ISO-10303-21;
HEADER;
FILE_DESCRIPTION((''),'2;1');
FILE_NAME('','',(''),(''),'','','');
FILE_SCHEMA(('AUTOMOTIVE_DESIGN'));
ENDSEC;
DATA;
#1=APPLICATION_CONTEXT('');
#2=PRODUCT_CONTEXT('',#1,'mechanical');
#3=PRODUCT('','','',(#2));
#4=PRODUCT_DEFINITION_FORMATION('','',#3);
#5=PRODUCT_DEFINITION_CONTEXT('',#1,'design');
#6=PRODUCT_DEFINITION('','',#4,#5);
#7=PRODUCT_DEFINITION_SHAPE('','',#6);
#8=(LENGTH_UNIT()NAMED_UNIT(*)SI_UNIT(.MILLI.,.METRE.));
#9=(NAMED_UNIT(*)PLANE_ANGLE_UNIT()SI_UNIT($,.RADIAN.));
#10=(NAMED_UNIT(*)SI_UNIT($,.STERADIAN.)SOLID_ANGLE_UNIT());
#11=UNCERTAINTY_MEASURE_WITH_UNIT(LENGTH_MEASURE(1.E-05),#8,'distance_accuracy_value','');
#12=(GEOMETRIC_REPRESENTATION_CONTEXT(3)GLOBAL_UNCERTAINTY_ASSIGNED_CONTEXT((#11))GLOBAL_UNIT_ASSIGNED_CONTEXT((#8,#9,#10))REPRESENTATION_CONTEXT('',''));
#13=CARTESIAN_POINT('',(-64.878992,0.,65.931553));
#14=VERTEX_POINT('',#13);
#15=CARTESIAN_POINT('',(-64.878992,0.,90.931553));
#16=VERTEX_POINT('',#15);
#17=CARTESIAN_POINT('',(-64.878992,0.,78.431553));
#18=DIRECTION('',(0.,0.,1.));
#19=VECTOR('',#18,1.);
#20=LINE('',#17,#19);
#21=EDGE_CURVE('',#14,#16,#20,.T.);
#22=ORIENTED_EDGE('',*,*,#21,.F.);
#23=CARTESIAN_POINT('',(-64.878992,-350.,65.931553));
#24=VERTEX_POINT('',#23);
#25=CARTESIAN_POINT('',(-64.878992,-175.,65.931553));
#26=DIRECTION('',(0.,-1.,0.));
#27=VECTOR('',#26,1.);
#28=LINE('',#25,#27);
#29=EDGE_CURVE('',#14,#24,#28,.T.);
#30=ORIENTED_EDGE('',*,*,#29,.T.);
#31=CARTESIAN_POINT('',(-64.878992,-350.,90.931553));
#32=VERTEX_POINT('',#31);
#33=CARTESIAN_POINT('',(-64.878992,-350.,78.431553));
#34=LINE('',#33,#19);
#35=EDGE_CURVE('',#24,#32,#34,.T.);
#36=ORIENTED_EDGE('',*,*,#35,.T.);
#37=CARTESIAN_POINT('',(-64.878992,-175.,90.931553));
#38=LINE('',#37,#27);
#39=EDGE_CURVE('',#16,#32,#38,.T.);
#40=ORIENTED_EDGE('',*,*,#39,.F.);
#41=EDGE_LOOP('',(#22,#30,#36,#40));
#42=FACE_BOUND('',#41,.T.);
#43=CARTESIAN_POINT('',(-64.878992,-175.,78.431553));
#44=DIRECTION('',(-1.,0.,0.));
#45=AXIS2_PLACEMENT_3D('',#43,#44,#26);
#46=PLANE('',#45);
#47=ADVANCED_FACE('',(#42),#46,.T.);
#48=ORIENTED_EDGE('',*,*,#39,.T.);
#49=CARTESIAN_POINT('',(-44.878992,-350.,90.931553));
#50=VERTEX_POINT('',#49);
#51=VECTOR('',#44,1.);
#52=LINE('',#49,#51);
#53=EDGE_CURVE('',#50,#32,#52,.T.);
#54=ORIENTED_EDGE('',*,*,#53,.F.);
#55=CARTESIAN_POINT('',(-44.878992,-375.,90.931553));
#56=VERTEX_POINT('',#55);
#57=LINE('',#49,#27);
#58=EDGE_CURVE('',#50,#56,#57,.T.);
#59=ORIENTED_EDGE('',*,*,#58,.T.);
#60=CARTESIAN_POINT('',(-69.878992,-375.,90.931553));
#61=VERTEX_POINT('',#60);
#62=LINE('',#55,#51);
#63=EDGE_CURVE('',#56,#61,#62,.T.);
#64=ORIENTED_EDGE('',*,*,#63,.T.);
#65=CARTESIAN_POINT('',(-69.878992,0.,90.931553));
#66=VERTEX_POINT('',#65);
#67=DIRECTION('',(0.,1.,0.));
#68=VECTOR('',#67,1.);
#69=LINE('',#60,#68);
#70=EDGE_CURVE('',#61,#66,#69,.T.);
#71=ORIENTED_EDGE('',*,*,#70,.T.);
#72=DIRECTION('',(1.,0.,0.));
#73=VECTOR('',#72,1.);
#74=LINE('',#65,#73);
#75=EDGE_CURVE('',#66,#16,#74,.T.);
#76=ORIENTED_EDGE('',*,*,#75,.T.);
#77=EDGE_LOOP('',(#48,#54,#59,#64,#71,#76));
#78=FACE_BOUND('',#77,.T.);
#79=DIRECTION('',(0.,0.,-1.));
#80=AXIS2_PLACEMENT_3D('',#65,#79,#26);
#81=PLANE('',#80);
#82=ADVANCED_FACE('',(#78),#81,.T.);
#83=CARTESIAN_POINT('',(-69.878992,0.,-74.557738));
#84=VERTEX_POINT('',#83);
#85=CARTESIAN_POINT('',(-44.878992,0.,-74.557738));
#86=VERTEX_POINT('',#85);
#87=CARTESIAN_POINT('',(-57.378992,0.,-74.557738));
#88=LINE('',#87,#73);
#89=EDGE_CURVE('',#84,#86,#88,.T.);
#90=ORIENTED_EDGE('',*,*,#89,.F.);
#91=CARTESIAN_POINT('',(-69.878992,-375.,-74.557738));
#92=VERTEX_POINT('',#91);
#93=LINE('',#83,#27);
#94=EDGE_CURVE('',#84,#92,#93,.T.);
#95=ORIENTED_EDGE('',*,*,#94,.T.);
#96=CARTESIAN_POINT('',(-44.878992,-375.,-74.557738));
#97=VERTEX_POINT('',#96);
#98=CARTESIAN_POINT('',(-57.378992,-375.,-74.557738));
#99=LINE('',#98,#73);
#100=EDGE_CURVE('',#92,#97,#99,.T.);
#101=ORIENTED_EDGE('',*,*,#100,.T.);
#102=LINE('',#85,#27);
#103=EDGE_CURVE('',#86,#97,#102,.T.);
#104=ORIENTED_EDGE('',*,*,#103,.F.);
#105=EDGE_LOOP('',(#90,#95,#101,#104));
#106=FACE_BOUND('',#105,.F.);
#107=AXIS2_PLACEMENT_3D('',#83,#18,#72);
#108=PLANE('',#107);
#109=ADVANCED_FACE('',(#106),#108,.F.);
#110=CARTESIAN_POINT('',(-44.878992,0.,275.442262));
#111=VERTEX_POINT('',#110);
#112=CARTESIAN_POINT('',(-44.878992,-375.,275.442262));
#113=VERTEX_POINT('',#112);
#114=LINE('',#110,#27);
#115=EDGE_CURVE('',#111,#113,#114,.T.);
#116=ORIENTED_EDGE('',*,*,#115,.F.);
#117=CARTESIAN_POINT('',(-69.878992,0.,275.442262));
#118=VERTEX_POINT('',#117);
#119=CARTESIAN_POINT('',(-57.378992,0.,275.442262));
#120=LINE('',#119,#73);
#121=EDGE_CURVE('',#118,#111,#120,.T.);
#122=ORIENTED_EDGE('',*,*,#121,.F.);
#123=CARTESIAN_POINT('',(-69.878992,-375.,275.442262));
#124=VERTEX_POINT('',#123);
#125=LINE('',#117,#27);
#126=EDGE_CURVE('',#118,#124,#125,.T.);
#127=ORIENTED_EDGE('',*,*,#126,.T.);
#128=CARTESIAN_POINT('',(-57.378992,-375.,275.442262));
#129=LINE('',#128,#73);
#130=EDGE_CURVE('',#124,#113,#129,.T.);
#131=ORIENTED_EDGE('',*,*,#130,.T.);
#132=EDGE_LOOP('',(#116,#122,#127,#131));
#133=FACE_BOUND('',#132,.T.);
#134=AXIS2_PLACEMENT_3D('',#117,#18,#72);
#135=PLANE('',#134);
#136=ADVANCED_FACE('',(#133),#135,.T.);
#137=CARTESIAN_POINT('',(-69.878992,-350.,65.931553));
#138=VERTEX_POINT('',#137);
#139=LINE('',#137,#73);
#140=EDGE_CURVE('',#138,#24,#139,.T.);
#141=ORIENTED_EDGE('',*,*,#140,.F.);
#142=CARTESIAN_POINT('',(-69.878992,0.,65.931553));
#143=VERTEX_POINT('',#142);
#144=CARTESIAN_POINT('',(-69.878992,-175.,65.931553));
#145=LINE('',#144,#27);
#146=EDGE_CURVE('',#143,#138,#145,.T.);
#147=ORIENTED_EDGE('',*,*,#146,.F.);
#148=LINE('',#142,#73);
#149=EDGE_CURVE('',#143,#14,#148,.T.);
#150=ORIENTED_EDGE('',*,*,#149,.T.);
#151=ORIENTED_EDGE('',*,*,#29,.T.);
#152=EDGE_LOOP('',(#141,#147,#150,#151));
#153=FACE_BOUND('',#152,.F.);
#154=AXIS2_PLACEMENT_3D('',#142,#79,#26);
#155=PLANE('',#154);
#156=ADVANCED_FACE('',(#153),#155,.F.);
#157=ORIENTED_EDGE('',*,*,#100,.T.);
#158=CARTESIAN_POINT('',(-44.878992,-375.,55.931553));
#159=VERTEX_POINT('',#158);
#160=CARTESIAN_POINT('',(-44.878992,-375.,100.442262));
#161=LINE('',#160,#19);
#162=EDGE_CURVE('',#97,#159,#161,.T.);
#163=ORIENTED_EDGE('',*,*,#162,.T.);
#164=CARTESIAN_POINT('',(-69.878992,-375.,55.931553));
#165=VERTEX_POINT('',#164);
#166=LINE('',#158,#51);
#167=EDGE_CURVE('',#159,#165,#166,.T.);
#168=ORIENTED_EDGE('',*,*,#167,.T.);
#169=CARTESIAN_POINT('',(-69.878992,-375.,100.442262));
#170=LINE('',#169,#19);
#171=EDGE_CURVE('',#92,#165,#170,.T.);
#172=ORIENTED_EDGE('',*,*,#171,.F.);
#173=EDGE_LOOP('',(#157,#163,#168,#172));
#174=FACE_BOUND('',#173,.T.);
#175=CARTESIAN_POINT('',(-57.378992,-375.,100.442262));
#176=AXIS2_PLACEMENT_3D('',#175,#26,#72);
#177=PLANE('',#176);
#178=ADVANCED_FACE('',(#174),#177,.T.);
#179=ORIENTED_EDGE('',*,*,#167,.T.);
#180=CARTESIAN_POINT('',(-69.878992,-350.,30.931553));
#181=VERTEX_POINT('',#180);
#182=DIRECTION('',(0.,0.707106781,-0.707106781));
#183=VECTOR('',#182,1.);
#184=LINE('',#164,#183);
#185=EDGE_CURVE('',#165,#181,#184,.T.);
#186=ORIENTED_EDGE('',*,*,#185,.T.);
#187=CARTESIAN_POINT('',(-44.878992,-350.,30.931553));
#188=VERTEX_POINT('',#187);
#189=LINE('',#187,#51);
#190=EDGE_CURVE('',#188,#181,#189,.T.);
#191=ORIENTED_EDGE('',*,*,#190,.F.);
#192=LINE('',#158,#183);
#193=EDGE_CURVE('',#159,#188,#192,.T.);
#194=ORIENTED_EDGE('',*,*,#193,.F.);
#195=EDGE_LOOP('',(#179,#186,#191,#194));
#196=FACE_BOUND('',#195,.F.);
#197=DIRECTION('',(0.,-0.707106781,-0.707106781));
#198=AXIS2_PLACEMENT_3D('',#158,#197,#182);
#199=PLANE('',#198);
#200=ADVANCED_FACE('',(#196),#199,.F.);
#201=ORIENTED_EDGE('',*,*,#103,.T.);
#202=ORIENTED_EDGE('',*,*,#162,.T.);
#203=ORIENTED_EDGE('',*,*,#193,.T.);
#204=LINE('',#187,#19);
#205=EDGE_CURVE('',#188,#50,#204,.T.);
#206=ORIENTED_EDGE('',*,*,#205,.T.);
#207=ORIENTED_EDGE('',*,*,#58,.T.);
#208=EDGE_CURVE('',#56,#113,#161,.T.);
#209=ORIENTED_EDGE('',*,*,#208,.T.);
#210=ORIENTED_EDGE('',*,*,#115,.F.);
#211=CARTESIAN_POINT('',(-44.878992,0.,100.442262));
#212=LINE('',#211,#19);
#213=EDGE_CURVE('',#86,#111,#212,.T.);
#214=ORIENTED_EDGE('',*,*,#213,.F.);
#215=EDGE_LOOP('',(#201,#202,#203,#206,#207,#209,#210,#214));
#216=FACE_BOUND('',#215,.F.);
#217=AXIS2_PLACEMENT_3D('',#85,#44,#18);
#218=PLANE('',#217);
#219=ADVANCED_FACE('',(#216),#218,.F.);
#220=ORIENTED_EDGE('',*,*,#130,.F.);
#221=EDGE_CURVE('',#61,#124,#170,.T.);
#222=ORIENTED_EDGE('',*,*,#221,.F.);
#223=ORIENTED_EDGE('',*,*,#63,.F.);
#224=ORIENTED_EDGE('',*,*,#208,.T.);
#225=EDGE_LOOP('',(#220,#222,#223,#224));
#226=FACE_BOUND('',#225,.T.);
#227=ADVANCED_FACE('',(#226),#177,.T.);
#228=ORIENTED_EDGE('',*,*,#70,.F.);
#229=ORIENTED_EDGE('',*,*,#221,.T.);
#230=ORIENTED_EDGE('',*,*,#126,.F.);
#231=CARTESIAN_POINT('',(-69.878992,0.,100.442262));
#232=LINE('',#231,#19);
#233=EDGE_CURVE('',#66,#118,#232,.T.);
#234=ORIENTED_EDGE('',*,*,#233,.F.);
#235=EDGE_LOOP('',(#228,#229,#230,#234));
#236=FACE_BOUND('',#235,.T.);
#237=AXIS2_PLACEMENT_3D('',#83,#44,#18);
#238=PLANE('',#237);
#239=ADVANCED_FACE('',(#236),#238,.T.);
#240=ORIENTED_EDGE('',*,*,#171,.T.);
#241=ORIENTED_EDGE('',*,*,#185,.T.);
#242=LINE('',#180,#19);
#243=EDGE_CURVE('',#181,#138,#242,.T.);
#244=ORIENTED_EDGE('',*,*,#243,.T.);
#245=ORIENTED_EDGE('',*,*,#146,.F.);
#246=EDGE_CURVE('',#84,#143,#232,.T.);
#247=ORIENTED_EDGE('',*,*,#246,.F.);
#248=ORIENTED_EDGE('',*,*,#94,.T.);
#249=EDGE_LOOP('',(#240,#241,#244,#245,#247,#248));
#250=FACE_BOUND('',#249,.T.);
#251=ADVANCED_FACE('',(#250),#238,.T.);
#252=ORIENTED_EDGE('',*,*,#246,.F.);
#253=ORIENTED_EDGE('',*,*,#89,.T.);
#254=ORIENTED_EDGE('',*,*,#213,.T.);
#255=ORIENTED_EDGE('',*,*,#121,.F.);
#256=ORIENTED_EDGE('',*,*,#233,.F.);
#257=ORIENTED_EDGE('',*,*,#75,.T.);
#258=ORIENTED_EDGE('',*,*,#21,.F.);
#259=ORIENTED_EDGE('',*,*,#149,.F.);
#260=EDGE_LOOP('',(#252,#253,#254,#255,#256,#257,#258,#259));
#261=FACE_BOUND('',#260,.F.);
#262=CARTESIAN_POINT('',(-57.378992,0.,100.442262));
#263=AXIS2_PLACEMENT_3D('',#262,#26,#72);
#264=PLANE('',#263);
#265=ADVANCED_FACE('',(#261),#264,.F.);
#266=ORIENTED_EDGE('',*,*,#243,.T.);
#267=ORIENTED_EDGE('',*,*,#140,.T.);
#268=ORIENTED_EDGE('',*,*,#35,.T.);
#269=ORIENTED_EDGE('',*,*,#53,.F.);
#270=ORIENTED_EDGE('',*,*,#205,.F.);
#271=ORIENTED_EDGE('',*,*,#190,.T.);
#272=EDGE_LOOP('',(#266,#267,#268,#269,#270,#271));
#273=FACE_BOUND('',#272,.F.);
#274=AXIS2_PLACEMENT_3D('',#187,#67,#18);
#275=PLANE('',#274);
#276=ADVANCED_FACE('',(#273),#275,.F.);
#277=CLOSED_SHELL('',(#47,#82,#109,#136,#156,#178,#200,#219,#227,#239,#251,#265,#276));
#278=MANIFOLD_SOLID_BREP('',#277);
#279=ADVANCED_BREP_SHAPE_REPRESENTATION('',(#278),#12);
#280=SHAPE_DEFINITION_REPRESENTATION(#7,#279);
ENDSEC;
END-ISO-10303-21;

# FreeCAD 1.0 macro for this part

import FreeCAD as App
import Part
import Sketcher

doc = App.newDocument("Part")
body = doc.addObject("PartDesign::Body", "Body")

# Sketch on XZ plane
sketch1 = body.newObject("Sketcher::SketchObject", "Sketch")
sketch1.AttachmentSupport = (doc.getObject("XZ_Plane"), [""])
sketch1.MapMode = "FlatFace"
sketch1.addGeometry([
    Part.LineSegment(App.Vector(-70, 275, 0), App.Vector(-70, -75, 0)),
    Part.LineSegment(App.Vector(-70, -75, 0), App.Vector(-45, -75, 0)),
    Part.LineSegment(App.Vector(-45, -75, 0), App.Vector(-45, 275, 0)),
    Part.LineSegment(App.Vector(-45, 275, 0), App.Vector(-70, 275, 0)),
], False)
sketch1.addConstraint([
    Sketcher.Constraint("Coincident", 0, 2, 1, 1),
    Sketcher.Constraint("Coincident", 1, 2, 2, 1),
    Sketcher.Constraint("Coincident", 2, 2, 3, 1),
    Sketcher.Constraint("Coincident", 3, 2, 0, 1),
    Sketcher.Constraint("Vertical", 0),
    Sketcher.Constraint("Horizontal", 1),
    Sketcher.Constraint("Vertical", 2),
    Sketcher.Constraint("Horizontal", 3),
    Sketcher.Constraint("DistanceX", 1, 1, 1, 2, 25.0),
    Sketcher.Constraint("DistanceY", 0, 2, 0, 1, 350.0),
    Sketcher.Constraint("DistanceX", 0, 2, -1, 1, 69.878992),
    Sketcher.Constraint("DistanceY", 0, 2, -1, 1, 74.557738),
])
pad1 = body.newObject("PartDesign::Pad", "Pad")
pad1.Profile = sketch1
pad1.Length = 375

# Sketch on YZ plane
sketch2 = body.newObject("Sketcher::SketchObject", "Sketch001")
sketch2.AttachmentSupport = (doc.getObject("YZ_Plane"), [""])
sketch2.MapMode = "FlatFace"
sketch2.AttachmentOffset = App.Placement(App.Vector(0, 0, -44.878992), App.Rotation())
sketch2.addGeometry([
    Part.LineSegment(App.Vector(-375, 91, 0), App.Vector(-375, 56, 0)),
    Part.LineSegment(App.Vector(-375, 56, 0), App.Vector(-350, 31, 0)),
    Part.LineSegment(App.Vector(-350, 31, 0), App.Vector(-350, 91, 0)),
    Part.LineSegment(App.Vector(-350, 91, 0), App.Vector(-375, 91, 0)),
], False)
sketch2.addConstraint([
    Sketcher.Constraint("Coincident", 0, 2, 1, 1),
    Sketcher.Constraint("Coincident", 1, 2, 2, 1),
    Sketcher.Constraint("Coincident", 2, 2, 3, 1),
    Sketcher.Constraint("Coincident", 3, 2, 0, 1),
    Sketcher.Constraint("Vertical", 0),
    Sketcher.Constraint("Vertical", 2),
    Sketcher.Constraint("Horizontal", 3),
    Sketcher.Constraint("DistanceX", 3, 2, 3, 1, 25.0),
    Sketcher.Constraint("DistanceY", 0, 2, 0, 1, 35.0),
    Sketcher.Constraint("DistanceY", 2, 1, 2, 2, 60.0),
    Sketcher.Constraint("DistanceX", 0, 2, -1, 1, 375.0),
    Sketcher.Constraint("DistanceY", -1, 1, 0, 2, 55.931553),
])
pocket1 = body.newObject("PartDesign::Pocket", "Pocket")
pocket1.Profile = sketch2
pocket1.Length = 25

# Sketch on YZ plane
sketch3 = body.newObject("Sketcher::SketchObject", "Sketch002")
sketch3.AttachmentSupport = (doc.getObject("YZ_Plane"), [""])
sketch3.MapMode = "FlatFace"
sketch3.AttachmentOffset = App.Placement(App.Vector(0, 0, -69.878992), App.Rotation())
sketch3.addGeometry([
    Part.LineSegment(App.Vector(0, 91, 0), App.Vector(0, 66, 0)),
    Part.LineSegment(App.Vector(0, 66, 0), App.Vector(-350, 66, 0)),
    Part.LineSegment(App.Vector(-350, 66, 0), App.Vector(-350, 91, 0)),
    Part.LineSegment(App.Vector(-350, 91, 0), App.Vector(0, 91, 0)),
], False)
sketch3.addConstraint([
    Sketcher.Constraint("Coincident", 0, 2, 1, 1),
    Sketcher.Constraint("Coincident", 1, 2, 2, 1),
    Sketcher.Constraint("Coincident", 2, 2, 3, 1),
    Sketcher.Constraint("Coincident", 3, 2, 0, 1),
    Sketcher.Constraint("Vertical", 0),
    Sketcher.Constraint("Horizontal", 1),
    Sketcher.Constraint("Vertical", 2),
    Sketcher.Constraint("Horizontal", 3),
    Sketcher.Constraint("PointOnObject", 0, 2, -2),
    Sketcher.Constraint("DistanceX", 1, 2, 1, 1, 350.0),
    Sketcher.Constraint("DistanceY", 0, 2, 0, 1, 25.0),
    Sketcher.Constraint("DistanceY", -1, 1, 0, 2, 65.931553),
])
pocket2 = body.newObject("PartDesign::Pocket", "Pocket001")
pocket2.Profile = sketch3
pocket2.Length = 5
pocket2.Reversed = True

doc.recompute()
